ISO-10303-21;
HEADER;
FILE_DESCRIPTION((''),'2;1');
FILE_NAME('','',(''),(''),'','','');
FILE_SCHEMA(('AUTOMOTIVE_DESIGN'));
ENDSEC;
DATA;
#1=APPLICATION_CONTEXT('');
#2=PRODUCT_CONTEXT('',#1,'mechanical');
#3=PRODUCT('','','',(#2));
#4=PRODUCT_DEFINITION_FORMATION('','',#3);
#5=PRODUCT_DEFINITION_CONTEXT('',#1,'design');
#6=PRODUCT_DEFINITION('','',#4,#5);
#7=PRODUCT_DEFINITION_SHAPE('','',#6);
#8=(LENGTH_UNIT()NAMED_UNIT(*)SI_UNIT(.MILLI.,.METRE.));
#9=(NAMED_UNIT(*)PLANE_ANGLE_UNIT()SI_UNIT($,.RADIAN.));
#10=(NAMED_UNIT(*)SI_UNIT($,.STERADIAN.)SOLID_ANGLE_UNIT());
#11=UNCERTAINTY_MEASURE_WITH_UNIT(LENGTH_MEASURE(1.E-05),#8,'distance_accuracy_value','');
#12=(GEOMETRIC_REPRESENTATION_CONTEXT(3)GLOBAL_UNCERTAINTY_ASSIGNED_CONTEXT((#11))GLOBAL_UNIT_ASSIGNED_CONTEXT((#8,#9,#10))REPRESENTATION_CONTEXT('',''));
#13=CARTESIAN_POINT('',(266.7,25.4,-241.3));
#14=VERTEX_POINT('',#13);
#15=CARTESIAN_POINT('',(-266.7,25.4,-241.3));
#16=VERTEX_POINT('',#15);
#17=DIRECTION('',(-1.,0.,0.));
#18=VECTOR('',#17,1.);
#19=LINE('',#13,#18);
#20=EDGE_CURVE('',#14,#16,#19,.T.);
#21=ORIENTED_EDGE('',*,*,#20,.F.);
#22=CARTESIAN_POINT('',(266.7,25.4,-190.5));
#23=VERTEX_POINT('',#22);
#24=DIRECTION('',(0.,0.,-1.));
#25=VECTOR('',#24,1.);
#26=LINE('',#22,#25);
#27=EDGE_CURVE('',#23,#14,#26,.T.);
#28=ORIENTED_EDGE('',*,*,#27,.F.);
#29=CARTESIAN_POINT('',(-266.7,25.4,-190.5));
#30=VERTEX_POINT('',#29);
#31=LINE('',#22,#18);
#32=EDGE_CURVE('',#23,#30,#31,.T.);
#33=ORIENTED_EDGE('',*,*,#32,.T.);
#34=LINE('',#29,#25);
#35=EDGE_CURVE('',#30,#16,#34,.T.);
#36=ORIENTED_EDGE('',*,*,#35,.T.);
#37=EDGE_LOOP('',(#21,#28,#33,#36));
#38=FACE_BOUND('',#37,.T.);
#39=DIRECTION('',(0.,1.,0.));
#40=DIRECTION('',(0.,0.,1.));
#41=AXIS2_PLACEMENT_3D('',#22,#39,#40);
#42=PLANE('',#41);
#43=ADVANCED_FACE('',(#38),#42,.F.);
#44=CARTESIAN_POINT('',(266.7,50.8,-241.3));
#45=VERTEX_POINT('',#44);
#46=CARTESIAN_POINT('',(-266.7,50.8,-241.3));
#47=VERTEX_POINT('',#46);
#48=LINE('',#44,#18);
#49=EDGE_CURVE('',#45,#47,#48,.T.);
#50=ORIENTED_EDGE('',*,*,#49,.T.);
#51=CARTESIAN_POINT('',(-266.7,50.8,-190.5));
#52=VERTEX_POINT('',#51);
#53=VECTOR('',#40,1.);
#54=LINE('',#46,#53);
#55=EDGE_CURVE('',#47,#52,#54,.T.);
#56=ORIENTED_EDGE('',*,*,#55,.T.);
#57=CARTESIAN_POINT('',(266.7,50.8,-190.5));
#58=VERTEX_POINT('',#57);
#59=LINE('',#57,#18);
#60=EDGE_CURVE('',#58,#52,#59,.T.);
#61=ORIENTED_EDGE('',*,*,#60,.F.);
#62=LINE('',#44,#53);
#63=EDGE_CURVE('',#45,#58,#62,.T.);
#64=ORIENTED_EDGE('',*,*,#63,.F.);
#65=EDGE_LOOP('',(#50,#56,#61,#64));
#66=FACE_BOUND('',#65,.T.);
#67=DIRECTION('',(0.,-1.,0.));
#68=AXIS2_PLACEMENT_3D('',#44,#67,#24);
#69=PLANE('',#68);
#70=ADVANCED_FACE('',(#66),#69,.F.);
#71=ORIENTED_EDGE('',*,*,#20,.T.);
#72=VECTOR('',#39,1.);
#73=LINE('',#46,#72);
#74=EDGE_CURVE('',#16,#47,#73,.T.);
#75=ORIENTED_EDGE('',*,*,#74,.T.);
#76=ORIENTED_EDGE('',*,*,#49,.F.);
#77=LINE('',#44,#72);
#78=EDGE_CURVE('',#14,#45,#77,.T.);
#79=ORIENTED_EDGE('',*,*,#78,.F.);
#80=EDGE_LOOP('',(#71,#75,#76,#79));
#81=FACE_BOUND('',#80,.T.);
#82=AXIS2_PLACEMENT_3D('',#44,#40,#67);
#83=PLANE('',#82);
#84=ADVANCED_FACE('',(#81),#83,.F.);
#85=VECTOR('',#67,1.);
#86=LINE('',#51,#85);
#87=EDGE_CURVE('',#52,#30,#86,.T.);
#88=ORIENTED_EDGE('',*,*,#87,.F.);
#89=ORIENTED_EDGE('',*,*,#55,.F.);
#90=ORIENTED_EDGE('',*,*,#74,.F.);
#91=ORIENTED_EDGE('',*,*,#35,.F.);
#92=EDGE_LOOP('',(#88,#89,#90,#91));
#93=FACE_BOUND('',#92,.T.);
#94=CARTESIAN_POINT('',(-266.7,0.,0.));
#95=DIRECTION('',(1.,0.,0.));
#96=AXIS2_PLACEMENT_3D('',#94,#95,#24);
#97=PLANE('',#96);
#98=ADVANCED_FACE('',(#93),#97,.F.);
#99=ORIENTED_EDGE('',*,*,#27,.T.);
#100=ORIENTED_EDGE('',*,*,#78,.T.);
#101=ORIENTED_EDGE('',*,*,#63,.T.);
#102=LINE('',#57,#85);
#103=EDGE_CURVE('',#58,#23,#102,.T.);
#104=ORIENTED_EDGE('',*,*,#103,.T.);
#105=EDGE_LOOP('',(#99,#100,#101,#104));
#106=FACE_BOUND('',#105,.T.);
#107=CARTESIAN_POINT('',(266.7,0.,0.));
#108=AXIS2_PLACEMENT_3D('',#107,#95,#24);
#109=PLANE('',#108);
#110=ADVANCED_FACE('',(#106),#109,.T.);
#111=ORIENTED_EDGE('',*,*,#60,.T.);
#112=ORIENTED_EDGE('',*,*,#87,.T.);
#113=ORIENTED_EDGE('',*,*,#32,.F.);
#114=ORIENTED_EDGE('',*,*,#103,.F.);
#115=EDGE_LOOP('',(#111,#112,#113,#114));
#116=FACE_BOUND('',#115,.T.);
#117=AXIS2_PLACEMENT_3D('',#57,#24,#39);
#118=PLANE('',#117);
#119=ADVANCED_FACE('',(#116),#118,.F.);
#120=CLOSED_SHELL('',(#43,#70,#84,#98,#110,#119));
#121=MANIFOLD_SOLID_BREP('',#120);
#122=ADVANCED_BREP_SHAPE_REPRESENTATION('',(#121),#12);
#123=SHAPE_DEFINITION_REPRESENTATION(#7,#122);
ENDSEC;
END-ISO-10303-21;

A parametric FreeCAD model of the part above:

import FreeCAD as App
import Part
import Sketcher
from FreeCAD import Vector
Q = App.Units.Quantity


def add_polygon(sketch, points):
    """Adds a closed chain of lines whose ends are joined by coincident constraints."""
    first, n = sketch.GeometryCount, len(points)
    for a, b in zip(points, points[1:] + points[:1]):
        sketch.addGeometry(Part.LineSegment(App.Vector(*a, 0), App.Vector(*b, 0)), False)
    for i in range(n):
        sketch.addConstraint(Sketcher.Constraint("Coincident", first + i, 2, first + (i + 1) % n, 1))

doc = App.newDocument("Part")
params = doc.addObject("Spreadsheet::Sheet", "Params")
for row, (alias, value) in enumerate([
    ("sketch1_width", "1 in"),
    ("sketch1_height", "2 in"),
    ("pad1_length", "10.5 in"),
    ("pad1_length2", "10.5 in"),
], start=1):
    params.set(f"A{row}", alias)
    params.set(f"B{row}", "=" + value)
    params.setAlias(f"B{row}", alias)

body = doc.addObject("PartDesign::Body", "Body")

sketch1 = doc.addObject("Sketcher::SketchObject", "Sketch")
body.addObject(sketch1)
sketch1.AttachmentSupport = (doc.YZ_Plane, [""])
sketch1.MapMode = "FlatFace"
add_polygon(sketch1, [(51, -190), (25, -190), (25, -241), (51, -241)])
sketch1.addConstraint([
    Sketcher.Constraint("Horizontal", 0),
    Sketcher.Constraint("Vertical", 1),
    Sketcher.Constraint("Horizontal", 2),
    Sketcher.Constraint("Vertical", 3),
    Sketcher.Constraint("DistanceX", 0, 2, 0, 1, Q("1 in")),
    Sketcher.Constraint("DistanceY", 1, 2, 1, 1, Q("2 in")),
    Sketcher.Constraint("DistanceX", -1, 1, 0, 2, Q("1 in")),
    Sketcher.Constraint("DistanceY", 0, 2, -1, 1, Q("7.5 in")),
])
sketch1.setExpression("Constraints[8]", "Params.sketch1_width")
sketch1.setExpression("Constraints[9]", "Params.sketch1_height")
pad1 = doc.addObject("PartDesign::Pad", "Pad")
body.addObject(pad1)
pad1.Profile = sketch1
pad1.Type = "TwoLengths"
pad1.setExpression("Length", "Params.pad1_length")
pad1.setExpression("Length2", "Params.pad1_length2")

doc.recompute()
